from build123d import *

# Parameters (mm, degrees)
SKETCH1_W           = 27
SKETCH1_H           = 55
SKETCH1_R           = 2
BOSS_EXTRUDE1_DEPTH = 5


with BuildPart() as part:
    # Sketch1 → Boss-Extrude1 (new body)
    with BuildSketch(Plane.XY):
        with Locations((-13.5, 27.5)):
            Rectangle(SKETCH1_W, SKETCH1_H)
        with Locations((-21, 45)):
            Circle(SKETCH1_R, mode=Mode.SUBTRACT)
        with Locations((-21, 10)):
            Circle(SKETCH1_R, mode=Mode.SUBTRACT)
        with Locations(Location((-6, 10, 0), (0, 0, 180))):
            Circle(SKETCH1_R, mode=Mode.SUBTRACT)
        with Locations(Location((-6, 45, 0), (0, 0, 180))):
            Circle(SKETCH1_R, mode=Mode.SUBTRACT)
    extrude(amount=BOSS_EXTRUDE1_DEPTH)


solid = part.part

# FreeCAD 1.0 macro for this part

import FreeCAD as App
import Part
import Sketcher

V = App.Vector
Q = App.Units.Quantity


def add_polygon(sketch, points):
    """Adds a closed chain of lines whose ends are joined by coincident constraints."""
    first, n = sketch.GeometryCount, len(points)
    for a, b in zip(points, points[1:] + points[:1]):
        sketch.addGeometry(Part.LineSegment(App.Vector(*a, 0), App.Vector(*b, 0)), False)
    for i in range(n):
        sketch.addConstraint(Sketcher.Constraint("Coincident", first + i, 2, first + (i + 1) % n, 1))

doc = App.newDocument("Part")
body = doc.addObject("PartDesign::Body", "Body")

sketch1 = body.newObject("Sketcher::SketchObject", "Sketch")
sketch1.AttachmentSupport = (doc.getObject("XY_Plane"), [""])
sketch1.MapMode = "FlatFace"
add_polygon(sketch1, [(-27, 55), (-27, 0), (0, 0), (0, 55)])
sketch1.addGeometry(Part.Circle(V(-21, 10, 0), V(0, 0, 1), 2), False)
sketch1.addGeometry(Part.Circle(V(-6, 10, 0), V(0, 0, 1), 2), False)
sketch1.addGeometry(Part.Circle(V(-21, 45, 0), V(0, 0, 1), 2), False)
sketch1.addGeometry(Part.Circle(V(-6, 45, 0), V(0, 0, 1), 2), False)
sketch1.addConstraint([
    Sketcher.Constraint("Vertical", 0),
    Sketcher.Constraint("Horizontal", 1),
    Sketcher.Constraint("Vertical", 2),
    Sketcher.Constraint("Horizontal", 3),
    Sketcher.Constraint("Coincident", 1, 2, -1, 1),
    Sketcher.Constraint("Equal", 4, 5),
    Sketcher.Constraint("Equal", 5, 6),
    Sketcher.Constraint("Equal", 6, 7),
    Sketcher.Constraint("Horizontal", 4, 3, 5, 3),
    Sketcher.Constraint("Horizontal", 6, 3, 7, 3),
    Sketcher.Constraint("Vertical", 4, 3, 6, 3),
    Sketcher.Constraint("Vertical", 5, 3, 7, 3),
    Sketcher.Constraint("Diameter", 4, Q("4 mm")),
    Sketcher.Constraint("DistanceX", 1, 1, 1, 2, Q("27 mm")),
    Sketcher.Constraint("DistanceY", 0, 2, 0, 1, Q("55 mm")),
    Sketcher.Constraint("DistanceX", 4, 3, -1, 1, Q("21 mm")),
    Sketcher.Constraint("DistanceY", -1, 1, 4, 3, Q("10 mm")),
    Sketcher.Constraint("DistanceX", 5, 3, -1, 1, Q("6 mm")),
    Sketcher.Constraint("DistanceY", -1, 1, 6, 3, Q("45 mm")),
])
pad1 = body.newObject("PartDesign::Pad", "Pad")
pad1.Profile = sketch1
pad1.Length = 5

doc.recompute()
